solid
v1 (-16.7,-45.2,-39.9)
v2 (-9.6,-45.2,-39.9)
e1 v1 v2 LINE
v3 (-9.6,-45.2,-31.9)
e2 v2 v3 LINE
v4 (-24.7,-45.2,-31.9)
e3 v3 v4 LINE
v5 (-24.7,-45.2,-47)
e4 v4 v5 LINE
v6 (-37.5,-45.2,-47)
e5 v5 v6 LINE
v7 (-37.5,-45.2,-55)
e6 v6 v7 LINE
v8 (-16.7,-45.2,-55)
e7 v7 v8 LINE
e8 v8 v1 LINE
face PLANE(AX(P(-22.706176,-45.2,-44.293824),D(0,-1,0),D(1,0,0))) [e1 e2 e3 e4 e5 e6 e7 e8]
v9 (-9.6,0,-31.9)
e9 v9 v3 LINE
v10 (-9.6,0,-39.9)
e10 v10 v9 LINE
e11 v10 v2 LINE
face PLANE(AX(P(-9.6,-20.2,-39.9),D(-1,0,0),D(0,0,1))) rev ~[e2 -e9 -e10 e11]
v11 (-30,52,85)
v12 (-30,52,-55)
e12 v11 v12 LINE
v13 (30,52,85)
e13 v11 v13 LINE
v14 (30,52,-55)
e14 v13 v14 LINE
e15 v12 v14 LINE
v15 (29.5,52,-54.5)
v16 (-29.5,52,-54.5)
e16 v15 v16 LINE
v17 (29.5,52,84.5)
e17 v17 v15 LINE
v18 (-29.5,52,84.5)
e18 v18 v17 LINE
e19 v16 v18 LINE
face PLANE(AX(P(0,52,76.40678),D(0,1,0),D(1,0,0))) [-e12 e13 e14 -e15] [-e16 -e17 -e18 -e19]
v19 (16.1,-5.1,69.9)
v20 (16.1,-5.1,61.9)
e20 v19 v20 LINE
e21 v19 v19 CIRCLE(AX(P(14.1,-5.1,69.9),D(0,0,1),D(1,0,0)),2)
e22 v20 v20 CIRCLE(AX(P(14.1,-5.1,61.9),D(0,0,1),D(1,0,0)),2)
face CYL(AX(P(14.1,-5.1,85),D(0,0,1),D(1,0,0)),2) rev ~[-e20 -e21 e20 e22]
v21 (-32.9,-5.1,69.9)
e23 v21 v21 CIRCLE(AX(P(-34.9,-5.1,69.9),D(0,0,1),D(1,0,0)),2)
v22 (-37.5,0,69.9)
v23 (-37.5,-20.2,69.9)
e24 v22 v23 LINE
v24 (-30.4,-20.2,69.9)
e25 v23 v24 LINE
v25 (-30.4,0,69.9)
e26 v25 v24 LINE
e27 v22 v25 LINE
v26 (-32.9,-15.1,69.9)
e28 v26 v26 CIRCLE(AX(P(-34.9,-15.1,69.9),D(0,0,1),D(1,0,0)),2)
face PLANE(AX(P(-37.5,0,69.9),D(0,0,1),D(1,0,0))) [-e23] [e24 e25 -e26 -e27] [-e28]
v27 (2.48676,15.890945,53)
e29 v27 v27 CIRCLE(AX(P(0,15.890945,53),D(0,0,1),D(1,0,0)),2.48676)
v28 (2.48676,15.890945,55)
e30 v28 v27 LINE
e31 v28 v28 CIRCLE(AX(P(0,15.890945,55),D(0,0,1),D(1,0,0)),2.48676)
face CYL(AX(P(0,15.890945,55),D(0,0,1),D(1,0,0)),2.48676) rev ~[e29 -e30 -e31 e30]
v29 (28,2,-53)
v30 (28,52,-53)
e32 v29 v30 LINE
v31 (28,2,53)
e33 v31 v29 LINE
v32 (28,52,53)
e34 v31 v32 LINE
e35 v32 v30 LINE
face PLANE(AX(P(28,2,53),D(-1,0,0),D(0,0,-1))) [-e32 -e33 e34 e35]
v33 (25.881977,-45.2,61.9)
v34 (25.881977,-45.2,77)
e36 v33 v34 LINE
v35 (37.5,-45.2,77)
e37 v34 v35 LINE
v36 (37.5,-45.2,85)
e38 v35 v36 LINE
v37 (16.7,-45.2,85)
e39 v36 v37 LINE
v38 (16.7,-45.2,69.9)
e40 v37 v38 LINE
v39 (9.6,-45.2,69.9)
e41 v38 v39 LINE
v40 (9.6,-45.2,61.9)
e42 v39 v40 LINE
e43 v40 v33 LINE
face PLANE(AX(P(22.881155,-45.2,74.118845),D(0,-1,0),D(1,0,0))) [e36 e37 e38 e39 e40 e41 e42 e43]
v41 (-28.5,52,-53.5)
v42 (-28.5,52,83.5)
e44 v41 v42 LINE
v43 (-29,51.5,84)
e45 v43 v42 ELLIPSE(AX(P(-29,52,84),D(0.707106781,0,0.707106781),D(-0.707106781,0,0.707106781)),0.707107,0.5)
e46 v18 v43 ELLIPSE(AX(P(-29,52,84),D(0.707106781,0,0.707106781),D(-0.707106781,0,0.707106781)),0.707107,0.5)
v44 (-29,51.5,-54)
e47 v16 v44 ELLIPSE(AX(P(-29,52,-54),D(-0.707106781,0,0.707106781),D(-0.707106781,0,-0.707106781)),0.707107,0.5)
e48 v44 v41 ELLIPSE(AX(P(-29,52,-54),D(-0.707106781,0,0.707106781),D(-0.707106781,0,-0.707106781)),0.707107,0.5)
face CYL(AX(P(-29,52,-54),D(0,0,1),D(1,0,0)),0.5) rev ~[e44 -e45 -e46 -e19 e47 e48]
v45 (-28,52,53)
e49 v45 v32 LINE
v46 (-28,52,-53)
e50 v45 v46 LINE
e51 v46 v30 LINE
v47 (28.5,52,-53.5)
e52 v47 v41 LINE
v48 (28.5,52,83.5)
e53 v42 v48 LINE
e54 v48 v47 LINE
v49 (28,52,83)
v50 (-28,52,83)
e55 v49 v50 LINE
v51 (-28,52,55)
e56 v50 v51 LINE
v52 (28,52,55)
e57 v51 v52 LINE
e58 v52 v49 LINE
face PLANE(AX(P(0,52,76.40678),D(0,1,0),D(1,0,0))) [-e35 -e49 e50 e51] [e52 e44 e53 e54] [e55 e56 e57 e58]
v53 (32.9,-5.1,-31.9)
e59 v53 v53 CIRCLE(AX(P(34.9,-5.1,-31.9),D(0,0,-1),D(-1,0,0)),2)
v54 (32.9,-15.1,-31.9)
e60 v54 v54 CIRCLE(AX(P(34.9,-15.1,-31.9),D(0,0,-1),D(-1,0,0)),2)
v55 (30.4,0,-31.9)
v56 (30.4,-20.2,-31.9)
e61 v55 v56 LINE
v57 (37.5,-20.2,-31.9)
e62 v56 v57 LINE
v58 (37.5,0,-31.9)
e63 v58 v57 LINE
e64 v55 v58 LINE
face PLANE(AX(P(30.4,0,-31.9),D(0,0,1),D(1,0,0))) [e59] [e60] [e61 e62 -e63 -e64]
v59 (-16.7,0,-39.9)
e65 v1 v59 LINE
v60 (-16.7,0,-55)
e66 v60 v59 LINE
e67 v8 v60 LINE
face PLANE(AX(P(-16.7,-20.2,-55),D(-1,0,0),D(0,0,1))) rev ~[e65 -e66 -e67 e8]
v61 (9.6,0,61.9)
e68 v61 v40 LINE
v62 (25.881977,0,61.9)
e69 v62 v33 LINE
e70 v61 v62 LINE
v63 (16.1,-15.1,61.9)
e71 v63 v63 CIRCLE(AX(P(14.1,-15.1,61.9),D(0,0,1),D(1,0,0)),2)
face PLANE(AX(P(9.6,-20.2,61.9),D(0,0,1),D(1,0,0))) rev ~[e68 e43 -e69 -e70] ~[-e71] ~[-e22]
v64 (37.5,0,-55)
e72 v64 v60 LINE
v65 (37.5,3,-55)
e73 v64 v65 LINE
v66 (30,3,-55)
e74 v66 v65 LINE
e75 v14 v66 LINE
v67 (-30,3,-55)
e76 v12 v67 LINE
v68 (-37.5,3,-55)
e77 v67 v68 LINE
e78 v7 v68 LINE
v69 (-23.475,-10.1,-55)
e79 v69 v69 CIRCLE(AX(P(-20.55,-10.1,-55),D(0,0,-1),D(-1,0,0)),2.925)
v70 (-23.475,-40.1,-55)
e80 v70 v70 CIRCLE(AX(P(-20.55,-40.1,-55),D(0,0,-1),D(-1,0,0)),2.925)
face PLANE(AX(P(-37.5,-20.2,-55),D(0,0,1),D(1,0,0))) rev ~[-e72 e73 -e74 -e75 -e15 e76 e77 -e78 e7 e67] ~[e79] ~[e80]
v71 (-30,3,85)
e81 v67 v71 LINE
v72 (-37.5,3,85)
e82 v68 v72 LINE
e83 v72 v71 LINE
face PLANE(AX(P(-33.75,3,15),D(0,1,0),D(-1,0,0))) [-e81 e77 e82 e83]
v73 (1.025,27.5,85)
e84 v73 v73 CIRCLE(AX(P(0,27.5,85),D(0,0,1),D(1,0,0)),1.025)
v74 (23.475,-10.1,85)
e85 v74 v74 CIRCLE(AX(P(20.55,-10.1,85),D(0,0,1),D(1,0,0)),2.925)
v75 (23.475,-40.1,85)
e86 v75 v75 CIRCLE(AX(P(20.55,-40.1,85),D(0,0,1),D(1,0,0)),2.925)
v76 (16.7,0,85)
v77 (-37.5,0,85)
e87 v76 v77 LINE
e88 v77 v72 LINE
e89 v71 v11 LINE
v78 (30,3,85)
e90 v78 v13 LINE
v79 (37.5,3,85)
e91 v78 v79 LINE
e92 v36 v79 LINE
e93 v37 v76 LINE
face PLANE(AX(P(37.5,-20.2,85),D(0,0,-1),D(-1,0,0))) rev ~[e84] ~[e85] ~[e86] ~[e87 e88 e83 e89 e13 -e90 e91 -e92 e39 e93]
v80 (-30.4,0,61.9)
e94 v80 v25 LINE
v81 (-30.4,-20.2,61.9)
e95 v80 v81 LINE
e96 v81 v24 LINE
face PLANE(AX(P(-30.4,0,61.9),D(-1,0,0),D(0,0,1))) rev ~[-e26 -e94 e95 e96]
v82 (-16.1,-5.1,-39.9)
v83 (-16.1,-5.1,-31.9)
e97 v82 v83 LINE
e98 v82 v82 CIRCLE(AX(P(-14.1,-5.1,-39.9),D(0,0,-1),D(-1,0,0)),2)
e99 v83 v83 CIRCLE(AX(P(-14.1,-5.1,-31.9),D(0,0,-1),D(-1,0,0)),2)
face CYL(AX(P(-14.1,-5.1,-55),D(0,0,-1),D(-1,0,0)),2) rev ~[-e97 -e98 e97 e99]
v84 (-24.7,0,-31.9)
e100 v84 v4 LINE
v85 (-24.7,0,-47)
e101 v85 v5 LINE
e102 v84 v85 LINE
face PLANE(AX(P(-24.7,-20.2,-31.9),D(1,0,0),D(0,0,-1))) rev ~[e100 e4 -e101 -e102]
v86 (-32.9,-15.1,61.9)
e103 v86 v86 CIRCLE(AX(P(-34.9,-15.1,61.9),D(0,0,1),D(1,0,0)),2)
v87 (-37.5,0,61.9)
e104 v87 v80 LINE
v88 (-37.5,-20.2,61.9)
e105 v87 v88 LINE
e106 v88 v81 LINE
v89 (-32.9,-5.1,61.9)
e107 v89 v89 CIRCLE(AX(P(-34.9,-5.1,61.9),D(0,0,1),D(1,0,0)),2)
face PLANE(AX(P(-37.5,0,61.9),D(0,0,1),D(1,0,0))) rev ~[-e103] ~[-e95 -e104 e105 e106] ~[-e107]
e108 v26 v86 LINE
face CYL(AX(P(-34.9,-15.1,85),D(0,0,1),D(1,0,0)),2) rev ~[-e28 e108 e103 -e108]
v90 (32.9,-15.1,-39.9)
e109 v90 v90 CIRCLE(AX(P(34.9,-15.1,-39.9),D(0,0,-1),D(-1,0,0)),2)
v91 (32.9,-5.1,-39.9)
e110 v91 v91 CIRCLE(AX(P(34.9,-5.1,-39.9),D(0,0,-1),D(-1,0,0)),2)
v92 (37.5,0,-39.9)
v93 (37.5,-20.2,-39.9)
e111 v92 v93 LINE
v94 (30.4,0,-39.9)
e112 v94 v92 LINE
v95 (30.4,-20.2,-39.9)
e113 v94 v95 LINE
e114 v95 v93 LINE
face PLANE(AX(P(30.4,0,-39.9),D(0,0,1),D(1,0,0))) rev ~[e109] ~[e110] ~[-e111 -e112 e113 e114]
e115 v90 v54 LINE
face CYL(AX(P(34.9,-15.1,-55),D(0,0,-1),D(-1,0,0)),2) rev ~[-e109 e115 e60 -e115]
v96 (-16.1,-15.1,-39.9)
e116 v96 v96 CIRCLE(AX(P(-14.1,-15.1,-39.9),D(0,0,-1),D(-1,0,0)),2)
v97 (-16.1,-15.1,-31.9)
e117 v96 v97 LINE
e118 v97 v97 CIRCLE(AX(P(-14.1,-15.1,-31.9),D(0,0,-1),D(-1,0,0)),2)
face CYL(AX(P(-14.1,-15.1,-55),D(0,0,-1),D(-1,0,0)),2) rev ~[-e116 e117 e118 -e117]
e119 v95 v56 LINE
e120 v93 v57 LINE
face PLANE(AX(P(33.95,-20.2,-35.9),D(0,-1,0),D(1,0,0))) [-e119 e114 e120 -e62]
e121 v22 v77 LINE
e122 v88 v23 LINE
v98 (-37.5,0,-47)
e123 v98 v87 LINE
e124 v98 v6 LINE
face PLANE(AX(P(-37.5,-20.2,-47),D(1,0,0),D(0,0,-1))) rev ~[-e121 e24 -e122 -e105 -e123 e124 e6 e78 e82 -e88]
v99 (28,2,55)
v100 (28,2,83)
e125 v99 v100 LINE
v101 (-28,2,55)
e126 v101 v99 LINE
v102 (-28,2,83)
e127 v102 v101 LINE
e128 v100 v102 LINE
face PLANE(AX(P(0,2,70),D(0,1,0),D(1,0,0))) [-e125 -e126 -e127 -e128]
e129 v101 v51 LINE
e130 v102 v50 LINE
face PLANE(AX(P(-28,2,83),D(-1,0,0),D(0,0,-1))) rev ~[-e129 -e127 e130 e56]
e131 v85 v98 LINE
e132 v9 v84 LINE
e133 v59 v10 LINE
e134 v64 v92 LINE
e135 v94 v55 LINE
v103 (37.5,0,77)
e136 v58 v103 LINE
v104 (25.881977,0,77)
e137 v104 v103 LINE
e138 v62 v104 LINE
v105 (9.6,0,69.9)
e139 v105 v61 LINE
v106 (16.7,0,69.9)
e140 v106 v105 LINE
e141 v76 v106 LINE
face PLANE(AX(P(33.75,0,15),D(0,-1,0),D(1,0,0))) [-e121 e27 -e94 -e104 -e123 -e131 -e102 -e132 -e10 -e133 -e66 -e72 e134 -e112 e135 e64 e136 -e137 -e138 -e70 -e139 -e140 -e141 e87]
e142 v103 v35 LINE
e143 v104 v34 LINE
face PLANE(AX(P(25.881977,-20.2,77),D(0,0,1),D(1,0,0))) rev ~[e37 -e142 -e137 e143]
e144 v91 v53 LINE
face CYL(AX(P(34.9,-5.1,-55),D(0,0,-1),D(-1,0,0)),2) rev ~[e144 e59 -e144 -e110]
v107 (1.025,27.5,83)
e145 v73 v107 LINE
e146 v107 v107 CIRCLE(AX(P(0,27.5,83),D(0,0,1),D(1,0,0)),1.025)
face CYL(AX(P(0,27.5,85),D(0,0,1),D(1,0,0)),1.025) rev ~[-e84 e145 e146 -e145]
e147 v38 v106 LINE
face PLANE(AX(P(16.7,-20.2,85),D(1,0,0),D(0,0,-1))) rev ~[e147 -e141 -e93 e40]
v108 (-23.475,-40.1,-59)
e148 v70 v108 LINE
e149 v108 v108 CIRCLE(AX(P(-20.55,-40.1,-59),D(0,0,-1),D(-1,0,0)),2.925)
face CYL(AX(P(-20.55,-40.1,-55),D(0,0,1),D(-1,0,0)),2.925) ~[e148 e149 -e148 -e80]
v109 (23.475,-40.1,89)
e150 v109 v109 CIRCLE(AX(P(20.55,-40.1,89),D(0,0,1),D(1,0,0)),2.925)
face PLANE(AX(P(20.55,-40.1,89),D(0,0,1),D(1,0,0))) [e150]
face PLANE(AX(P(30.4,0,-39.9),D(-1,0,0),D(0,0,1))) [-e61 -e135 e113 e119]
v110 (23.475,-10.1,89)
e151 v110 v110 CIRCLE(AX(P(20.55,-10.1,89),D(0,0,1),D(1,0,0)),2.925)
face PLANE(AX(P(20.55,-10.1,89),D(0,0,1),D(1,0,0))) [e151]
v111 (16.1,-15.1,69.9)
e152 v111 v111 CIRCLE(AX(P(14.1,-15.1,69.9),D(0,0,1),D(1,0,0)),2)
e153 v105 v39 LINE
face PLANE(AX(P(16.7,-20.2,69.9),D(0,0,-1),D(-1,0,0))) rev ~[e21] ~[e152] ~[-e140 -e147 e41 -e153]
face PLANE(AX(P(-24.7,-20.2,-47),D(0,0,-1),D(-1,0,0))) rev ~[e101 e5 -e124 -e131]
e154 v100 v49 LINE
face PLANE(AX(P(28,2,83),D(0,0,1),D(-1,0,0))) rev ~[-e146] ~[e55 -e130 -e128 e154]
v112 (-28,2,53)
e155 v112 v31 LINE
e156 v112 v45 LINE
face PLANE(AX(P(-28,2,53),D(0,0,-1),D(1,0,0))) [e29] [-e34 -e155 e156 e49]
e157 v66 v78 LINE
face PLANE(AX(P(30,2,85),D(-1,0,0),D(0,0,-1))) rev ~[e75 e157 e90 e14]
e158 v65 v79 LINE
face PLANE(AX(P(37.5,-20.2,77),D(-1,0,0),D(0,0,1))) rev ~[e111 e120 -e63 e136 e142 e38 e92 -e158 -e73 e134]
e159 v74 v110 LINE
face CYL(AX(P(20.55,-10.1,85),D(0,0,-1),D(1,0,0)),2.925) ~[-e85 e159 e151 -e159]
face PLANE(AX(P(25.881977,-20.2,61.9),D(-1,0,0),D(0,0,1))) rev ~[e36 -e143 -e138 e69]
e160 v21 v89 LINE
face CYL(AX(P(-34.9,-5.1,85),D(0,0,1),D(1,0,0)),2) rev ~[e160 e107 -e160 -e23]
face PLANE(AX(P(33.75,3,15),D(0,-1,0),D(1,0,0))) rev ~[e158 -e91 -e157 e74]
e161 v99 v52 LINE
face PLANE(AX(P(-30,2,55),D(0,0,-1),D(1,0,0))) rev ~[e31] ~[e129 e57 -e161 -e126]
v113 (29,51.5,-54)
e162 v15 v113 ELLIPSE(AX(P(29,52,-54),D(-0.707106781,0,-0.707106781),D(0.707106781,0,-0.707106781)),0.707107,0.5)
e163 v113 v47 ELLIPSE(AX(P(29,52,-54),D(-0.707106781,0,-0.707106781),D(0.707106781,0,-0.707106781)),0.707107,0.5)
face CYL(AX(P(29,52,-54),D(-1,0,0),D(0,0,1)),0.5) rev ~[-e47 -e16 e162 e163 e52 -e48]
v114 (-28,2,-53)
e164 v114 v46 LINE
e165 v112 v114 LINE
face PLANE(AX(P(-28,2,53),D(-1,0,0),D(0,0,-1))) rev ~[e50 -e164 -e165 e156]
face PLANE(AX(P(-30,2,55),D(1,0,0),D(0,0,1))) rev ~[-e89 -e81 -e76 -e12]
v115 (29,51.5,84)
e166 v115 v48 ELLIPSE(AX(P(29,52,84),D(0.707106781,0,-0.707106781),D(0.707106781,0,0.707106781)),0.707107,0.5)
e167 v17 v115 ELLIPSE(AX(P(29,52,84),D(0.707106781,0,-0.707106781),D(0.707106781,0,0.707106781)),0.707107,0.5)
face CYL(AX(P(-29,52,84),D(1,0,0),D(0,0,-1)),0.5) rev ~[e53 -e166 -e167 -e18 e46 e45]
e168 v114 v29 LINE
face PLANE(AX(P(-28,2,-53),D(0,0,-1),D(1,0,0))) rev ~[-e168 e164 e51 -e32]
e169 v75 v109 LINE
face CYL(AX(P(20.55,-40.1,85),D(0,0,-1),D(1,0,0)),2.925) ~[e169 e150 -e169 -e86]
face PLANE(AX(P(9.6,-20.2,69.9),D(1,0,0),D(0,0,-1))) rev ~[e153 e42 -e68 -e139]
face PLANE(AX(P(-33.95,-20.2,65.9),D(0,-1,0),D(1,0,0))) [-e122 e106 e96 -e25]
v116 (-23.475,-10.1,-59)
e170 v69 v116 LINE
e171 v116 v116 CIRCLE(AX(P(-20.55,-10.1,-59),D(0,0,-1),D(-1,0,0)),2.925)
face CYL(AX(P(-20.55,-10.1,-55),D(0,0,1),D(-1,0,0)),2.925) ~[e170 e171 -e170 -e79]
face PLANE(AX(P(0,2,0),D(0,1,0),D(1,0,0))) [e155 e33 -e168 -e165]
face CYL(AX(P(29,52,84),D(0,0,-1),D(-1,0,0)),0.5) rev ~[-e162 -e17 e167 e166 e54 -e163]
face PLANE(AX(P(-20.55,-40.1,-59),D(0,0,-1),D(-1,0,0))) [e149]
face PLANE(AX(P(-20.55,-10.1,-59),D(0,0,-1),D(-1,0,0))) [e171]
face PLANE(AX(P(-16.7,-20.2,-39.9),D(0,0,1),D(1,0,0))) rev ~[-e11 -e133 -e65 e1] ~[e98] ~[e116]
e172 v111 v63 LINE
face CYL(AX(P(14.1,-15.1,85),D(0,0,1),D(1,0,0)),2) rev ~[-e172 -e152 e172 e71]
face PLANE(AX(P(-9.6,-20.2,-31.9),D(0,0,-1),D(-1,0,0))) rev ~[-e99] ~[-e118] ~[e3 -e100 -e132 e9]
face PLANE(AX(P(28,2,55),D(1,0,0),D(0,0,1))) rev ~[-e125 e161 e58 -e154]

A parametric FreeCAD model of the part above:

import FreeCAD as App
import Part
import Sketcher

doc = App.newDocument("Part")
params = doc.addObject("Spreadsheet::Sheet", "Params")
for row, (alias, value) in enumerate([
    ("sketch1_width", "60 mm"),
    ("sketch1_height", "110 mm"),
    ("pad1_length", "2 mm"),
    ("sketch2_width", "60 mm"),
    ("sketch2_width2", "56 mm"),
    ("sketch2_height", "110 mm"),
    ("sketch2_height2", "106 mm"),
    ("pad2_length", "50 mm"),
    ("sketch3_width", "60 mm"),
    ("sketch3_height", "30 mm"),
    ("pad3_length", "2 mm"),
    ("sketch4_width", "2 mm"),
    ("sketch4_width2", "60 mm"),
    ("sketch4_height", "30 mm"),
    ("sketch4_height2", "28 mm"),
    ("pad4_length", "50 mm"),
    ("pocket1_length", "30 mm"),
    ("sketch6_diameter", "1 mm"),
    ("sketch7_width", "58 mm"),
    ("sketch7_height", "138 mm"),
    ("sketch8_height", "140 mm"),
    ("sketch8_width", "7.5 mm"),
    ("pad5_length", "3 mm"),
    ("sketch9_height", "8 mm"),
    ("sketch9_width", "7.1 mm"),
    ("sketch9_width2", "20.8 mm"),
    ("sketch9_width3", "15.1 mm"),
    ("pad6_length", "20.2 mm"),
    ("sketch10_diameter", "4 mm"),
    ("pocket2_length", "46.2 mm"),
    ("sketch11_diameter", "4 mm"),
    ("pocket3_length", "49.2 mm"),
    ("sketch12_diameter", "5.85 mm"),
    ("pad7_length", "4 mm"),
    ("sketch13_diameter", "5.85 mm"),
    ("pad8_length", "4 mm"),
    ("sketch14_diameter", "2.05 mm"),
    ("pocket4_length", "10 mm"),
    ("sketch15_height", "8 mm"),
    ("sketch15_width", "7.1 mm"),
    ("sketch15_width2", "20.8 mm"),
    ("sketch15_height2", "15.1 mm"),
    ("pad9_length", "25 mm"),
    ("sketch16_diameter", "5.85 mm"),
    ("pad10_length", "4 mm"),
    ("sketch17_height", "8 mm"),
    ("sketch17_width", "7.1 mm"),
    ("sketch17_width2", "15.1 mm"),
    ("sketch17_width3", "12.8 mm"),
    ("pad11_length", "25 mm"),
    ("sketch18_diameter", "5.85 mm"),
    ("pad12_length", "4 mm"),
], start=1):
    params.set(f"A{row}", alias)
    params.set(f"B{row}", "=" + value)
    params.setAlias(f"B{row}", alias)

body = doc.addObject("PartDesign::Body", "Body")

sketch1 = body.newObject("Sketcher::SketchObject", "Sketch")
sketch1.AttachmentSupport = (doc.getObject("XZ_Plane"), [""])
sketch1.MapMode = "FlatFace"
sketch1.addGeometry([
    Part.LineSegment(App.Vector(-30, -55, 0), App.Vector(-30, 55, 0)),
    Part.LineSegment(App.Vector(-30, 55, 0), App.Vector(30, 55, 0)),
    Part.LineSegment(App.Vector(30, 55, 0), App.Vector(30, -55, 0)),
    Part.LineSegment(App.Vector(30, -55, 0), App.Vector(-30, -55, 0)),
], False)
sketch1.addConstraint([
    Sketcher.Constraint("Coincident", 0, 2, 1, 1),
    Sketcher.Constraint("Coincident", 1, 2, 2, 1),
    Sketcher.Constraint("Coincident", 2, 2, 3, 1),
    Sketcher.Constraint("Coincident", 3, 2, 0, 1),
    Sketcher.Constraint("Vertical", 0),
    Sketcher.Constraint("Horizontal", 1),
    Sketcher.Constraint("Vertical", 2),
    Sketcher.Constraint("Horizontal", 3),
    Sketcher.Constraint("Symmetric", 0, 2, 2, 2, -1, 1),
    Sketcher.Constraint("DistanceX", 1, 1, 1, 2, 60.0),
    Sketcher.Constraint("DistanceY", 0, 1, 0, 2, 110.0),
])
sketch1.setExpression("Constraints[9]", "Params.sketch1_width")
sketch1.setExpression("Constraints[10]", "Params.sketch1_height")
pad1 = body.newObject("PartDesign::Pad", "Pad")
pad1.Profile = sketch1
pad1.setExpression("Length", "Params.pad1_length")
pad1.Reversed = True

sketch2 = body.newObject("Sketcher::SketchObject", "Sketch001")
sketch2.AttachmentSupport = (doc.getObject("XZ_Plane"), [""])
sketch2.MapMode = "FlatFace"
sketch2.AttachmentOffset = App.Placement(App.Vector(0, 0, -2), App.Rotation())
sketch2.addGeometry([
    Part.LineSegment(App.Vector(-30, -55, 0), App.Vector(-30, 55, 0)),
    Part.LineSegment(App.Vector(-30, 55, 0), App.Vector(30, 55, 0)),
    Part.LineSegment(App.Vector(30, 55, 0), App.Vector(30, -55, 0)),
    Part.LineSegment(App.Vector(30, -55, 0), App.Vector(-30, -55, 0)),
    Part.LineSegment(App.Vector(28, 53, 0), App.Vector(-28, 53, 0)),
    Part.LineSegment(App.Vector(-28, 53, 0), App.Vector(-28, -53, 0)),
    Part.LineSegment(App.Vector(-28, -53, 0), App.Vector(28, -53, 0)),
    Part.LineSegment(App.Vector(28, -53, 0), App.Vector(28, 53, 0)),
], False)
sketch2.addConstraint([
    Sketcher.Constraint("Coincident", 0, 2, 1, 1),
    Sketcher.Constraint("Coincident", 1, 2, 2, 1),
    Sketcher.Constraint("Coincident", 2, 2, 3, 1),
    Sketcher.Constraint("Coincident", 3, 2, 0, 1),
    Sketcher.Constraint("Coincident", 4, 2, 5, 1),
    Sketcher.Constraint("Coincident", 5, 2, 6, 1),
    Sketcher.Constraint("Coincident", 6, 2, 7, 1),
    Sketcher.Constraint("Coincident", 7, 2, 4, 1),
    Sketcher.Constraint("Vertical", 0),
    Sketcher.Constraint("Horizontal", 1),
    Sketcher.Constraint("Vertical", 2),
    Sketcher.Constraint("Horizontal", 3),
    Sketcher.Constraint("Horizontal", 4),
    Sketcher.Constraint("Vertical", 5),
    Sketcher.Constraint("Horizontal", 6),
    Sketcher.Constraint("Vertical", 7),
    Sketcher.Constraint("Symmetric", 0, 2, 2, 2, -1, 1),
    Sketcher.Constraint("Symmetric", 4, 2, 6, 2, -1, 1),
    Sketcher.Constraint("DistanceX", 1, 1, 1, 2, 60.0),
    Sketcher.Constraint("DistanceX", 4, 2, 4, 1, 56.0),
    Sketcher.Constraint("DistanceY", 0, 1, 0, 2, 110.0),
    Sketcher.Constraint("DistanceY", 5, 2, 5, 1, 106.0),
])
sketch2.setExpression("Constraints[18]", "Params.sketch2_width")
sketch2.setExpression("Constraints[19]", "Params.sketch2_width2")
sketch2.setExpression("Constraints[20]", "Params.sketch2_height")
sketch2.setExpression("Constraints[21]", "Params.sketch2_height2")
pad2 = body.newObject("PartDesign::Pad", "Pad001")
pad2.Profile = sketch2
pad2.setExpression("Length", "Params.pad2_length")
pad2.Reversed = True

sketch3 = body.newObject("Sketcher::SketchObject", "Sketch002")
sketch3.AttachmentSupport = (doc.getObject("XZ_Plane"), [""])
sketch3.MapMode = "FlatFace"
sketch3.addGeometry([
    Part.LineSegment(App.Vector(-30, 55, 0), App.Vector(-30, 85, 0)),
    Part.LineSegment(App.Vector(-30, 85, 0), App.Vector(30, 85, 0)),
    Part.LineSegment(App.Vector(30, 85, 0), App.Vector(30, 55, 0)),
    Part.LineSegment(App.Vector(30, 55, 0), App.Vector(-30, 55, 0)),
], False)
sketch3.addConstraint([
    Sketcher.Constraint("Coincident", 0, 2, 1, 1),
    Sketcher.Constraint("Coincident", 1, 2, 2, 1),
    Sketcher.Constraint("Coincident", 2, 2, 3, 1),
    Sketcher.Constraint("Coincident", 3, 2, 0, 1),
    Sketcher.Constraint("Vertical", 0),
    Sketcher.Constraint("Horizontal", 1),
    Sketcher.Constraint("Vertical", 2),
    Sketcher.Constraint("Horizontal", 3),
    Sketcher.Constraint("DistanceX", 1, 1, 1, 2, 60.0),
    Sketcher.Constraint("DistanceY", 0, 1, 0, 2, 30.0),
    Sketcher.Constraint("DistanceX", 0, 2, -1, 1, 30.0),
    Sketcher.Constraint("DistanceY", -1, 1, 0, 2, 85.0),
])
sketch3.setExpression("Constraints[8]", "Params.sketch3_width")
sketch3.setExpression("Constraints[9]", "Params.sketch3_height")
pad3 = body.newObject("PartDesign::Pad", "Pad002")
pad3.Profile = sketch3
pad3.setExpression("Length", "Params.pad3_length")
pad3.Reversed = True

sketch4 = body.newObject("Sketcher::SketchObject", "Sketch003")
sketch4.AttachmentSupport = (doc.getObject("XZ_Plane"), [""])
sketch4.MapMode = "FlatFace"
sketch4.AttachmentOffset = App.Placement(App.Vector(0, 0, -2), App.Rotation())
sketch4.addGeometry([
    Part.LineSegment(App.Vector(-28, 55, 0), App.Vector(-30, 55, 0)),
    Part.LineSegment(App.Vector(-30, 55, 0), App.Vector(-30, 85, 0)),
    Part.LineSegment(App.Vector(-30, 85, 0), App.Vector(30, 85, 0)),
    Part.LineSegment(App.Vector(30, 85, 0), App.Vector(30, 55, 0)),
    Part.LineSegment(App.Vector(30, 55, 0), App.Vector(28, 55, 0)),
    Part.LineSegment(App.Vector(28, 55, 0), App.Vector(28, 83, 0)),
    Part.LineSegment(App.Vector(28, 83, 0), App.Vector(-28, 83, 0)),
    Part.LineSegment(App.Vector(-28, 83, 0), App.Vector(-28, 55, 0)),
], False)
sketch4.addConstraint([
    Sketcher.Constraint("Coincident", 0, 2, 1, 1),
    Sketcher.Constraint("Coincident", 1, 2, 2, 1),
    Sketcher.Constraint("Coincident", 2, 2, 3, 1),
    Sketcher.Constraint("Coincident", 3, 2, 4, 1),
    Sketcher.Constraint("Coincident", 4, 2, 5, 1),
    Sketcher.Constraint("Coincident", 5, 2, 6, 1),
    Sketcher.Constraint("Coincident", 6, 2, 7, 1),
    Sketcher.Constraint("Coincident", 7, 2, 0, 1),
    Sketcher.Constraint("Horizontal", 0),
    Sketcher.Constraint("Vertical", 1),
    Sketcher.Constraint("Horizontal", 2),
    Sketcher.Constraint("Vertical", 3),
    Sketcher.Constraint("Horizontal", 4),
    Sketcher.Constraint("Vertical", 5),
    Sketcher.Constraint("Horizontal", 6),
    Sketcher.Constraint("Vertical", 7),
    Sketcher.Constraint("Symmetric", 0, 2, 3, 2, -2),
    Sketcher.Constraint("Equal", 0, 4),
    Sketcher.Constraint("DistanceX", 0, 2, 0, 1, 2.0),
    Sketcher.Constraint("DistanceX", 2, 1, 2, 2, 60.0),
    Sketcher.Constraint("DistanceY", 1, 1, 1, 2, 30.0),
    Sketcher.Constraint("DistanceY", 5, 1, 5, 2, 28.0),
    Sketcher.Constraint("DistanceY", -1, 1, 0, 2, 55.0),
])
sketch4.setExpression("Constraints[18]", "Params.sketch4_width")
sketch4.setExpression("Constraints[19]", "Params.sketch4_width2")
sketch4.setExpression("Constraints[20]", "Params.sketch4_height")
sketch4.setExpression("Constraints[21]", "Params.sketch4_height2")
pad4 = body.newObject("PartDesign::Pad", "Pad003")
pad4.Profile = sketch4
pad4.setExpression("Length", "Params.pad4_length")
pad4.Reversed = True

sketch5 = body.newObject("Sketcher::SketchObject", "Sketch004")
sketch5.AttachmentSupport = (doc.getObject("XY_Plane"), [""])
sketch5.MapMode = "FlatFace"
sketch5.AttachmentOffset = App.Placement(App.Vector(0, 0, 55), App.Rotation())
sketch5.addGeometry(Part.Circle(App.Vector(0, 15.890945, 0), App.Vector(0, 0, 1), 2.48676), False)
sketch5.addConstraint([
    Sketcher.Constraint("PointOnObject", 0, 3, -2),
    Sketcher.Constraint("Diameter", 0, 4.97352),
    Sketcher.Constraint("DistanceY", -1, 1, 0, 3, 15.890945),
])
pocket1 = body.newObject("PartDesign::Pocket", "Pocket")
pocket1.Profile = sketch5
pocket1.setExpression("Length", "Params.pocket1_length")

sketch6 = body.newObject("Sketcher::SketchObject", "Sketch005")
sketch6.AttachmentSupport = (doc.getObject("XY_Plane"), [""])
sketch6.MapMode = "FlatFace"
sketch6.AttachmentOffset = App.Placement(App.Vector(0, 0, -54), App.Rotation())
sketch6.addGeometry(Part.Circle(App.Vector(-29, 52, 0), App.Vector(0, 0, 1), 0.5), False)
sketch6.addConstraint([
    Sketcher.Constraint("Diameter", 0, 1.0),
    Sketcher.Constraint("DistanceX", 0, 3, -1, 1, 29.0),
    Sketcher.Constraint("DistanceY", -1, 1, 0, 3, 52.0),
])
sketch6.setExpression("Constraints[0]", "Params.sketch6_diameter")

sketch7 = body.newObject("Sketcher::SketchObject", "Sketch006")
sketch7.AttachmentSupport = (doc.getObject("XZ_Plane"), [""])
sketch7.MapMode = "FlatFace"
sketch7.AttachmentOffset = App.Placement(App.Vector(0, 0, -52), App.Rotation())
sketch7.addGeometry([
    Part.LineSegment(App.Vector(-29, -54, 0), App.Vector(-29, 84, 0)),
    Part.LineSegment(App.Vector(-29, 84, 0), App.Vector(29, 84, 0)),
    Part.LineSegment(App.Vector(29, 84, 0), App.Vector(29, -54, 0)),
    Part.LineSegment(App.Vector(29, -54, 0), App.Vector(-29, -54, 0)),
], False)
sketch7.addConstraint([
    Sketcher.Constraint("Coincident", 0, 2, 1, 1),
    Sketcher.Constraint("Coincident", 1, 2, 2, 1),
    Sketcher.Constraint("Coincident", 2, 2, 3, 1),
    Sketcher.Constraint("Coincident", 3, 2, 0, 1),
    Sketcher.Constraint("Vertical", 0),
    Sketcher.Constraint("Horizontal", 1),
    Sketcher.Constraint("Vertical", 2),
    Sketcher.Constraint("Horizontal", 3),
    Sketcher.Constraint("DistanceX", 1, 1, 1, 2, 58.0),
    Sketcher.Constraint("DistanceY", 0, 1, 0, 2, 138.0),
    Sketcher.Constraint("DistanceX", 0, 2, -1, 1, 29.0),
    Sketcher.Constraint("DistanceY", -1, 1, 0, 2, 84.0),
])
sketch7.setExpression("Constraints[8]", "Params.sketch7_width")
sketch7.setExpression("Constraints[9]", "Params.sketch7_height")
doc.recompute()

subtractivepipe = body.newObject("PartDesign::SubtractivePipe", "SubtractivePipe")
subtractivepipe.Profile = sketch6
subtractivepipe.Spine = (sketch7, ["Edge1", "Edge2", "Edge3", "Edge4"])
subtractivepipe.Transition = "Right corner"

sketch8 = body.newObject("Sketcher::SketchObject", "Sketch007")
sketch8.AttachmentSupport = (doc.getObject("XZ_Plane"), [""])
sketch8.MapMode = "FlatFace"
sketch8.addGeometry([
    Part.LineSegment(App.Vector(30, 85, 0), App.Vector(30, -55, 0)),
    Part.LineSegment(App.Vector(30, -55, 0), App.Vector(37.5, -55, 0)),
    Part.LineSegment(App.Vector(37.5, -55, 0), App.Vector(37.5, 85, 0)),
    Part.LineSegment(App.Vector(37.5, 85, 0), App.Vector(30, 85, 0)),
    Part.LineSegment(App.Vector(-37.5, -55, 0), App.Vector(-30, -55, 0)),
    Part.LineSegment(App.Vector(-30, -55, 0), App.Vector(-30, 85, 0)),
    Part.LineSegment(App.Vector(-30, 85, 0), App.Vector(-37.5, 85, 0)),
    Part.LineSegment(App.Vector(-37.5, 85, 0), App.Vector(-37.5, -55, 0)),
], False)
sketch8.addConstraint([
    Sketcher.Constraint("Coincident", 0, 2, 1, 1),
    Sketcher.Constraint("Coincident", 1, 2, 2, 1),
    Sketcher.Constraint("Coincident", 2, 2, 3, 1),
    Sketcher.Constraint("Coincident", 3, 2, 0, 1),
    Sketcher.Constraint("Coincident", 4, 2, 5, 1),
    Sketcher.Constraint("Coincident", 5, 2, 6, 1),
    Sketcher.Constraint("Coincident", 6, 2, 7, 1),
    Sketcher.Constraint("Coincident", 7, 2, 4, 1),
    Sketcher.Constraint("Vertical", 0),
    Sketcher.Constraint("Horizontal", 1),
    Sketcher.Constraint("Vertical", 2),
    Sketcher.Constraint("Horizontal", 3),
    Sketcher.Constraint("Horizontal", 4),
    Sketcher.Constraint("Vertical", 5),
    Sketcher.Constraint("Horizontal", 6),
    Sketcher.Constraint("Vertical", 7),
    Sketcher.Constraint("Symmetric", 0, 2, 4, 2, -2),
    Sketcher.Constraint("Symmetric", 2, 2, 6, 2, -2),
    Sketcher.Constraint("DistanceY", 0, 2, 0, 1, 140.0),
    Sketcher.Constraint("DistanceX", 1, 1, 1, 2, 7.5),
    Sketcher.Constraint("DistanceX", -1, 1, 0, 2, 30.0),
    Sketcher.Constraint("DistanceY", 0, 2, -1, 1, 55.0),
])
sketch8.setExpression("Constraints[18]", "Params.sketch8_height")
sketch8.setExpression("Constraints[19]", "Params.sketch8_width")
pad5 = body.newObject("PartDesign::Pad", "Pad004")
pad5.Profile = sketch8
pad5.setExpression("Length", "Params.pad5_length")
pad5.Reversed = True

sketch9 = body.newObject("Sketcher::SketchObject", "Sketch008")
sketch9.AttachmentSupport = (doc.getObject("XZ_Plane"), [""])
sketch9.MapMode = "FlatFace"
sketch9.addGeometry([
    Part.LineSegment(App.Vector(-37.5, 69.9, 0), App.Vector(-37.5, 61.9, 0)),
    Part.LineSegment(App.Vector(-37.5, 61.9, 0), App.Vector(-30.4, 61.9, 0)),
    Part.LineSegment(App.Vector(-30.4, 61.9, 0), App.Vector(-30.4, 69.9, 0)),
    Part.LineSegment(App.Vector(-30.4, 69.9, 0), App.Vector(-37.5, 69.9, 0)),
    Part.LineSegment(App.Vector(9.6, 69.9, 0), App.Vector(9.6, 61.9, 0)),
    Part.LineSegment(App.Vector(9.6, 61.9, 0), App.Vector(25.881977, 61.9, 0)),
    Part.LineSegment(App.Vector(25.881977, 61.9, 0), App.Vector(25.881977, 77, 0)),
    Part.LineSegment(App.Vector(25.881977, 77, 0), App.Vector(37.5, 77, 0)),
    Part.LineSegment(App.Vector(37.5, 77, 0), App.Vector(37.5, 85, 0)),
    Part.LineSegment(App.Vector(37.5, 85, 0), App.Vector(16.7, 85, 0)),
    Part.LineSegment(App.Vector(16.7, 85, 0), App.Vector(16.7, 69.9, 0)),
    Part.LineSegment(App.Vector(16.7, 69.9, 0), App.Vector(9.6, 69.9, 0)),
    Part.LineSegment(App.Vector(30.4, -31.9, 0), App.Vector(30.4, -39.9, 0)),
    Part.LineSegment(App.Vector(30.4, -39.9, 0), App.Vector(37.5, -39.9, 0)),
    Part.LineSegment(App.Vector(37.5, -39.9, 0), App.Vector(37.5, -31.9, 0)),
    Part.LineSegment(App.Vector(37.5, -31.9, 0), App.Vector(30.4, -31.9, 0)),
    Part.LineSegment(App.Vector(-9.6, -39.9, 0), App.Vector(-9.6, -31.9, 0)),
    Part.LineSegment(App.Vector(-9.6, -31.9, 0), App.Vector(-24.7, -31.9, 0)),
    Part.LineSegment(App.Vector(-24.7, -31.9, 0), App.Vector(-24.7, -47, 0)),
    Part.LineSegment(App.Vector(-24.7, -47, 0), App.Vector(-37.5, -47, 0)),
    Part.LineSegment(App.Vector(-37.5, -47, 0), App.Vector(-37.5, -55, 0)),
    Part.LineSegment(App.Vector(-37.5, -55, 0), App.Vector(-16.7, -55, 0)),
    Part.LineSegment(App.Vector(-16.7, -55, 0), App.Vector(-16.7, -39.9, 0)),
    Part.LineSegment(App.Vector(-16.7, -39.9, 0), App.Vector(-9.6, -39.9, 0)),
], False)
sketch9.addConstraint([
    Sketcher.Constraint("Coincident", 0, 2, 1, 1),
    Sketcher.Constraint("Coincident", 1, 2, 2, 1),
    Sketcher.Constraint("Coincident", 2, 2, 3, 1),
    Sketcher.Constraint("Coincident", 3, 2, 0, 1),
    Sketcher.Constraint("Coincident", 4, 2, 5, 1),
    Sketcher.Constraint("Coincident", 5, 2, 6, 1),
    Sketcher.Constraint("Coincident", 6, 2, 7, 1),
    Sketcher.Constraint("Coincident", 7, 2, 8, 1),
    Sketcher.Constraint("Coincident", 8, 2, 9, 1),
    Sketcher.Constraint("Coincident", 9, 2, 10, 1),
    Sketcher.Constraint("Coincident", 10, 2, 11, 1),
    Sketcher.Constraint("Coincident", 11, 2, 4, 1),
    Sketcher.Constraint("Coincident", 12, 2, 13, 1),
    Sketcher.Constraint("Coincident", 13, 2, 14, 1),
    Sketcher.Constraint("Coincident", 14, 2, 15, 1),
    Sketcher.Constraint("Coincident", 15, 2, 12, 1),
    Sketcher.Constraint("Coincident", 16, 2, 17, 1),
    Sketcher.Constraint("Coincident", 17, 2, 18, 1),
    Sketcher.Constraint("Coincident", 18, 2, 19, 1),
    Sketcher.Constraint("Coincident", 19, 2, 20, 1),
    Sketcher.Constraint("Coincident", 20, 2, 21, 1),
    Sketcher.Constraint("Coincident", 21, 2, 22, 1),
    Sketcher.Constraint("Coincident", 22, 2, 23, 1),
    Sketcher.Constraint("Coincident", 23, 2, 16, 1),
    Sketcher.Constraint("Vertical", 0),
    Sketcher.Constraint("Horizontal", 1),
    Sketcher.Constraint("Vertical", 2),
    Sketcher.Constraint("Horizontal", 3),
    Sketcher.Constraint("Vertical", 4),
    Sketcher.Constraint("Horizontal", 5),
    Sketcher.Constraint("Vertical", 6),
    Sketcher.Constraint("Horizontal", 7),
    Sketcher.Constraint("Vertical", 8),
    Sketcher.Constraint("Horizontal", 9),
    Sketcher.Constraint("Vertical", 10),
    Sketcher.Constraint("Horizontal", 11),
    Sketcher.Constraint("Vertical", 12),
    Sketcher.Constraint("Horizontal", 13),
    Sketcher.Constraint("Vertical", 14),
    Sketcher.Constraint("Horizontal", 15),
    Sketcher.Constraint("Vertical", 16),
    Sketcher.Constraint("Horizontal", 17),
    Sketcher.Constraint("Vertical", 18),
    Sketcher.Constraint("Horizontal", 19),
    Sketcher.Constraint("Vertical", 20),
    Sketcher.Constraint("Horizontal", 21),
    Sketcher.Constraint("Vertical", 22),
    Sketcher.Constraint("Horizontal", 23),
    Sketcher.Constraint("Horizontal", 1, 2, 4, 2),
    Sketcher.Constraint("Horizontal", 3, 2, 10, 2),
    Sketcher.Constraint("Horizontal", 15, 2, 16, 2),
    Sketcher.Constraint("Horizontal", 13, 2, 22, 2),
    Sketcher.Constraint("Vertical", 8, 2, 13, 2),
    Sketcher.Constraint("Vertical", 3, 2, 19, 2),
    Sketcher.Constraint("Equal", 3, 11),
    Sketcher.Constraint("Equal", 11, 13),
    Sketcher.Constraint("Equal", 9, 21),
    Sketcher.Constraint("Equal", 15, 23),
    Sketcher.Constraint("Equal", 17, 6),
    Sketcher.Constraint("Equal", 4, 8),
    Sketcher.Constraint("Equal", 8, 12),
    Sketcher.Constraint("Equal", 10, 18),
    Sketcher.Constraint("Equal", 16, 20),
    Sketcher.Constraint("DistanceY", 0, 2, 0, 1, 8.0),
    Sketcher.Constraint("DistanceX", 1, 1, 1, 2, 7.1),
    Sketcher.Constraint("DistanceX", 9, 2, 9, 1, 20.8),
    Sketcher.Constraint("DistanceX", 17, 2, 17, 1, 15.1),
    Sketcher.Constraint("DistanceY", -1, 1, 6, 2, 77.0),
    Sketcher.Constraint("DistanceY", 18, 2, -1, 1, 47.0),
    Sketcher.Constraint("DistanceX", 1, 2, 4, 2, 40.0),
    Sketcher.Constraint("DistanceX", 0, 2, -1, 1, 37.5),
    Sketcher.Constraint("DistanceX", 5, 1, 5, 2, 16.281977),
])
sketch9.setExpression("Constraints[63]", "Params.sketch9_height")
sketch9.setExpression("Constraints[64]", "Params.sketch9_width")
sketch9.setExpression("Constraints[65]", "Params.sketch9_width2")
sketch9.setExpression("Constraints[66]", "Params.sketch9_width3")
pad6 = body.newObject("PartDesign::Pad", "Pad005")
pad6.Profile = sketch9
pad6.setExpression("Length", "Params.pad6_length")

sketch10 = body.newObject("Sketcher::SketchObject", "Sketch009")
sketch10.AttachmentSupport = (doc.getObject("XY_Plane"), [""])
sketch10.MapMode = "FlatFace"
sketch10.AttachmentOffset = App.Placement(App.Vector(0, 0, 85), App.Rotation())
sketch10.addGeometry([
    Part.Circle(App.Vector(-34.9, -15.1, 0), App.Vector(0, 0, 1), 2),
    Part.Circle(App.Vector(-34.9, -5.1, 0), App.Vector(0, 0, 1), 2),
    Part.Circle(App.Vector(14.1, -15.1, 0), App.Vector(0, 0, 1), 2),
    Part.Circle(App.Vector(14.1, -5.1, 0), App.Vector(0, 0, 1), 2),
], False)
sketch10.addConstraint([
    Sketcher.Constraint("Equal", 0, 1),
    Sketcher.Constraint("Equal", 1, 2),
    Sketcher.Constraint("Equal", 2, 3),
    Sketcher.Constraint("Horizontal", 0, 3, 2, 3),
    Sketcher.Constraint("Horizontal", 1, 3, 3, 3),
    Sketcher.Constraint("Vertical", 0, 3, 1, 3),
    Sketcher.Constraint("Vertical", 2, 3, 3, 3),
    Sketcher.Constraint("Diameter", 0, 4.0),
    Sketcher.Constraint("DistanceY", 0, 3, 1, 3, 10.0),
    Sketcher.Constraint("DistanceX", 0, 3, 2, 3, 49.0),
    Sketcher.Constraint("DistanceX", 0, 3, -1, 1, 34.9),
    Sketcher.Constraint("DistanceY", 0, 3, -1, 1, 15.1),
])
sketch10.setExpression("Constraints[7]", "Params.sketch10_diameter")
pocket2 = body.newObject("PartDesign::Pocket", "Pocket001")
pocket2.Profile = sketch10
pocket2.setExpression("Length", "Params.pocket2_length")

sketch11 = body.newObject("Sketcher::SketchObject", "Sketch010")
sketch11.AttachmentSupport = (doc.getObject("XY_Plane"), [""])
sketch11.MapMode = "FlatFace"
sketch11.AttachmentOffset = App.Placement(App.Vector(0, 0, -55), App.Rotation())
sketch11.addGeometry([
    Part.Circle(App.Vector(34.9, -15.1, 0), App.Vector(0, 0, 1), 2),
    Part.Circle(App.Vector(34.9, -5.1, 0), App.Vector(0, 0, 1), 2),
    Part.Circle(App.Vector(-14.1, -5.1, 0), App.Vector(0, 0, 1), 2),
    Part.Circle(App.Vector(-14.1, -15.1, 0), App.Vector(0, 0, 1), 2),
], False)
sketch11.addConstraint([
    Sketcher.Constraint("Equal", 0, 1),
    Sketcher.Constraint("Equal", 1, 2),
    Sketcher.Constraint("Equal", 2, 3),
    Sketcher.Constraint("Horizontal", 1, 3, 2, 3),
    Sketcher.Constraint("Horizontal", 0, 3, 3, 3),
    Sketcher.Constraint("Vertical", 0, 3, 1, 3),
    Sketcher.Constraint("Vertical", 2, 3, 3, 3),
    Sketcher.Constraint("Diameter", 0, 4.0),
    Sketcher.Constraint("DistanceY", 0, 3, 1, 3, 10.0),
    Sketcher.Constraint("DistanceX", 2, 3, 1, 3, 49.0),
    Sketcher.Constraint("DistanceX", -1, 1, 0, 3, 34.9),
    Sketcher.Constraint("DistanceY", 0, 3, -1, 1, 15.1),
])
sketch11.setExpression("Constraints[7]", "Params.sketch11_diameter")
pocket3 = body.newObject("PartDesign::Pocket", "Pocket002")
pocket3.Profile = sketch11
pocket3.setExpression("Length", "Params.pocket3_length")
pocket3.Reversed = True

sketch12 = body.newObject("Sketcher::SketchObject", "Sketch011")
sketch12.AttachmentSupport = (doc.getObject("XY_Plane"), [""])
sketch12.MapMode = "FlatFace"
sketch12.AttachmentOffset = App.Placement(App.Vector(0, 0, -55), App.Rotation())
sketch12.addGeometry(Part.Circle(App.Vector(-20.55, -10.1, 0), App.Vector(0, 0, 1), 2.925), False)
sketch12.addConstraint([
    Sketcher.Constraint("Diameter", 0, 5.85),
    Sketcher.Constraint("DistanceY", 0, 3, -1, 1, 10.1),
    Sketcher.Constraint("DistanceX", 0, 3, -1, 1, 20.55),
])
sketch12.setExpression("Constraints[0]", "Params.sketch12_diameter")
pad7 = body.newObject("PartDesign::Pad", "Pad006")
pad7.Profile = sketch12
pad7.setExpression("Length", "Params.pad7_length")
pad7.Reversed = True

sketch13 = body.newObject("Sketcher::SketchObject", "Sketch012")
sketch13.AttachmentSupport = (doc.getObject("XY_Plane"), [""])
sketch13.MapMode = "FlatFace"
sketch13.AttachmentOffset = App.Placement(App.Vector(0, 0, 85), App.Rotation())
sketch13.addGeometry(Part.Circle(App.Vector(20.55, -10.1, 0), App.Vector(0, 0, 1), 2.925), False)
sketch13.addConstraint([
    Sketcher.Constraint("Diameter", 0, 5.85),
    Sketcher.Constraint("DistanceY", 0, 3, -1, 1, 10.1),
    Sketcher.Constraint("DistanceX", -1, 1, 0, 3, 20.55),
])
sketch13.setExpression("Constraints[0]", "Params.sketch13_diameter")
pad8 = body.newObject("PartDesign::Pad", "Pad007")
pad8.Profile = sketch13
pad8.setExpression("Length", "Params.pad8_length")

sketch14 = body.newObject("Sketcher::SketchObject", "Sketch013")
sketch14.AttachmentSupport = (doc.getObject("XY_Plane"), [""])
sketch14.MapMode = "FlatFace"
sketch14.AttachmentOffset = App.Placement(App.Vector(0, 0, 85), App.Rotation())
sketch14.addGeometry(Part.Circle(App.Vector(0, 27.5, 0), App.Vector(0, 0, 1), 1.025), False)
sketch14.addConstraint([
    Sketcher.Constraint("PointOnObject", 0, 3, -2),
    Sketcher.Constraint("Diameter", 0, 2.05),
    Sketcher.Constraint("DistanceY", -1, 1, 0, 3, 27.5),
])
sketch14.setExpression("Constraints[1]", "Params.sketch14_diameter")
pocket4 = body.newObject("PartDesign::Pocket", "Pocket003")
pocket4.Profile = sketch14
pocket4.setExpression("Length", "Params.pocket4_length")

sketch15 = body.newObject("Sketcher::SketchObject", "Sketch014")
sketch15.AttachmentSupport = (doc.getObject("XZ_Plane"), [""])
sketch15.MapMode = "FlatFace"
sketch15.AttachmentOffset = App.Placement(App.Vector(0, 0, 20.2), App.Rotation())
sketch15.addGeometry([
    Part.LineSegment(App.Vector(16.7, 69.9, 0), App.Vector(9.6, 69.9, 0)),
    Part.LineSegment(App.Vector(9.6, 69.9, 0), App.Vector(9.6, 61.9, 0)),
    Part.LineSegment(App.Vector(9.6, 61.9, 0), App.Vector(25.881977, 61.9, 0)),
    Part.LineSegment(App.Vector(25.881977, 61.9, 0), App.Vector(25.881977, 77, 0)),
    Part.LineSegment(App.Vector(25.881977, 77, 0), App.Vector(37.5, 77, 0)),
    Part.LineSegment(App.Vector(37.5, 77, 0), App.Vector(37.5, 85, 0)),
    Part.LineSegment(App.Vector(37.5, 85, 0), App.Vector(16.7, 85, 0)),
    Part.LineSegment(App.Vector(16.7, 85, 0), App.Vector(16.7, 69.9, 0)),
], False)
sketch15.addConstraint([
    Sketcher.Constraint("Coincident", 0, 2, 1, 1),
    Sketcher.Constraint("Coincident", 1, 2, 2, 1),
    Sketcher.Constraint("Coincident", 2, 2, 3, 1),
    Sketcher.Constraint("Coincident", 3, 2, 4, 1),
    Sketcher.Constraint("Coincident", 4, 2, 5, 1),
    Sketcher.Constraint("Coincident", 5, 2, 6, 1),
    Sketcher.Constraint("Coincident", 6, 2, 7, 1),
    Sketcher.Constraint("Coincident", 7, 2, 0, 1),
    Sketcher.Constraint("Horizontal", 0),
    Sketcher.Constraint("Vertical", 1),
    Sketcher.Constraint("Horizontal", 2),
    Sketcher.Constraint("Vertical", 3),
    Sketcher.Constraint("Horizontal", 4),
    Sketcher.Constraint("Vertical", 5),
    Sketcher.Constraint("Horizontal", 6),
    Sketcher.Constraint("Vertical", 7),
    Sketcher.Constraint("Equal", 1, 5),
    Sketcher.Constraint("DistanceY", 1, 2, 1, 1, 8.0),
    Sketcher.Constraint("DistanceX", 0, 2, 0, 1, 7.1),
    Sketcher.Constraint("DistanceX", 6, 2, 6, 1, 20.8),
    Sketcher.Constraint("DistanceY", 3, 1, 3, 2, 15.1),
    Sketcher.Constraint("DistanceY", -1, 1, 3, 2, 77.0),
    Sketcher.Constraint("DistanceX", -1, 1, 0, 2, 9.6),
    Sketcher.Constraint("DistanceX", 2, 1, 2, 2, 16.281977),
])
sketch15.setExpression("Constraints[17]", "Params.sketch15_height")
sketch15.setExpression("Constraints[18]", "Params.sketch15_width")
sketch15.setExpression("Constraints[19]", "Params.sketch15_width2")
sketch15.setExpression("Constraints[20]", "Params.sketch15_height2")
pad9 = body.newObject("PartDesign::Pad", "Pad008")
pad9.Profile = sketch15
pad9.setExpression("Length", "Params.pad9_length")

sketch16 = body.newObject("Sketcher::SketchObject", "Sketch015")
sketch16.AttachmentSupport = (doc.getObject("XY_Plane"), [""])
sketch16.MapMode = "FlatFace"
sketch16.AttachmentOffset = App.Placement(App.Vector(0, 0, 85), App.Rotation())
sketch16.addGeometry(Part.Circle(App.Vector(20.55, -40.1, 0), App.Vector(0, 0, 1), 2.925), False)
sketch16.addConstraint([
    Sketcher.Constraint("Diameter", 0, 5.85),
    Sketcher.Constraint("DistanceY", 0, 3, -1, 1, 40.1),
    Sketcher.Constraint("DistanceX", -1, 1, 0, 3, 20.55),
])
sketch16.setExpression("Constraints[0]", "Params.sketch16_diameter")
pad10 = body.newObject("PartDesign::Pad", "Pad009")
pad10.Profile = sketch16
pad10.setExpression("Length", "Params.pad10_length")

sketch17 = body.newObject("Sketcher::SketchObject", "Sketch016")
sketch17.AttachmentSupport = (doc.getObject("XZ_Plane"), [""])
sketch17.MapMode = "FlatFace"
sketch17.AttachmentOffset = App.Placement(App.Vector(0, 0, 20.2), App.Rotation())
sketch17.addGeometry([
    Part.LineSegment(App.Vector(-16.7, -39.9, 0), App.Vector(-9.6, -39.9, 0)),
    Part.LineSegment(App.Vector(-9.6, -39.9, 0), App.Vector(-9.6, -31.9, 0)),
    Part.LineSegment(App.Vector(-9.6, -31.9, 0), App.Vector(-24.7, -31.9, 0)),
    Part.LineSegment(App.Vector(-24.7, -31.9, 0), App.Vector(-24.7, -47, 0)),
    Part.LineSegment(App.Vector(-24.7, -47, 0), App.Vector(-37.5, -47, 0)),
    Part.LineSegment(App.Vector(-37.5, -47, 0), App.Vector(-37.5, -55, 0)),
    Part.LineSegment(App.Vector(-37.5, -55, 0), App.Vector(-16.7, -55, 0)),
    Part.LineSegment(App.Vector(-16.7, -55, 0), App.Vector(-16.7, -39.9, 0)),
], False)
sketch17.addConstraint([
    Sketcher.Constraint("Coincident", 0, 2, 1, 1),
    Sketcher.Constraint("Coincident", 1, 2, 2, 1),
    Sketcher.Constraint("Coincident", 2, 2, 3, 1),
    Sketcher.Constraint("Coincident", 3, 2, 4, 1),
    Sketcher.Constraint("Coincident", 4, 2, 5, 1),
    Sketcher.Constraint("Coincident", 5, 2, 6, 1),
    Sketcher.Constraint("Coincident", 6, 2, 7, 1),
    Sketcher.Constraint("Coincident", 7, 2, 0, 1),
    Sketcher.Constraint("Horizontal", 0),
    Sketcher.Constraint("Vertical", 1),
    Sketcher.Constraint("Horizontal", 2),
    Sketcher.Constraint("Vertical", 3),
    Sketcher.Constraint("Horizontal", 4),
    Sketcher.Constraint("Vertical", 5),
    Sketcher.Constraint("Horizontal", 6),
    Sketcher.Constraint("Vertical", 7),
    Sketcher.Constraint("Equal", 2, 3),
    Sketcher.Constraint("Equal", 1, 5),
    Sketcher.Constraint("DistanceY", 1, 1, 1, 2, 8.0),
    Sketcher.Constraint("DistanceX", 0, 1, 0, 2, 7.1),
    Sketcher.Constraint("DistanceX", 2, 2, 2, 1, 15.1),
    Sketcher.Constraint("DistanceX", 4, 2, 4, 1, 12.8),
    Sketcher.Constraint("DistanceY", 3, 2, -1, 1, 47.0),
    Sketcher.Constraint("DistanceX", 0, 2, -1, 1, 9.6),
])
sketch17.setExpression("Constraints[18]", "Params.sketch17_height")
sketch17.setExpression("Constraints[19]", "Params.sketch17_width")
sketch17.setExpression("Constraints[20]", "Params.sketch17_width2")
sketch17.setExpression("Constraints[21]", "Params.sketch17_width3")
pad11 = body.newObject("PartDesign::Pad", "Pad010")
pad11.Profile = sketch17
pad11.setExpression("Length", "Params.pad11_length")

sketch18 = body.newObject("Sketcher::SketchObject", "Sketch017")
sketch18.AttachmentSupport = (doc.getObject("XY_Plane"), [""])
sketch18.MapMode = "FlatFace"
sketch18.AttachmentOffset = App.Placement(App.Vector(0, 0, -55), App.Rotation())
sketch18.addGeometry(Part.Circle(App.Vector(-20.55, -40.1, 0), App.Vector(0, 0, 1), 2.925), False)
sketch18.addConstraint([
    Sketcher.Constraint("Diameter", 0, 5.85),
    Sketcher.Constraint("DistanceY", 0, 3, -1, 1, 40.1),
    Sketcher.Constraint("DistanceX", 0, 3, -1, 1, 20.55),
])
sketch18.setExpression("Constraints[0]", "Params.sketch18_diameter")
pad12 = body.newObject("PartDesign::Pad", "Pad011")
pad12.Profile = sketch18
pad12.setExpression("Length", "Params.pad12_length")
pad12.Reversed = True

doc.recompute()
